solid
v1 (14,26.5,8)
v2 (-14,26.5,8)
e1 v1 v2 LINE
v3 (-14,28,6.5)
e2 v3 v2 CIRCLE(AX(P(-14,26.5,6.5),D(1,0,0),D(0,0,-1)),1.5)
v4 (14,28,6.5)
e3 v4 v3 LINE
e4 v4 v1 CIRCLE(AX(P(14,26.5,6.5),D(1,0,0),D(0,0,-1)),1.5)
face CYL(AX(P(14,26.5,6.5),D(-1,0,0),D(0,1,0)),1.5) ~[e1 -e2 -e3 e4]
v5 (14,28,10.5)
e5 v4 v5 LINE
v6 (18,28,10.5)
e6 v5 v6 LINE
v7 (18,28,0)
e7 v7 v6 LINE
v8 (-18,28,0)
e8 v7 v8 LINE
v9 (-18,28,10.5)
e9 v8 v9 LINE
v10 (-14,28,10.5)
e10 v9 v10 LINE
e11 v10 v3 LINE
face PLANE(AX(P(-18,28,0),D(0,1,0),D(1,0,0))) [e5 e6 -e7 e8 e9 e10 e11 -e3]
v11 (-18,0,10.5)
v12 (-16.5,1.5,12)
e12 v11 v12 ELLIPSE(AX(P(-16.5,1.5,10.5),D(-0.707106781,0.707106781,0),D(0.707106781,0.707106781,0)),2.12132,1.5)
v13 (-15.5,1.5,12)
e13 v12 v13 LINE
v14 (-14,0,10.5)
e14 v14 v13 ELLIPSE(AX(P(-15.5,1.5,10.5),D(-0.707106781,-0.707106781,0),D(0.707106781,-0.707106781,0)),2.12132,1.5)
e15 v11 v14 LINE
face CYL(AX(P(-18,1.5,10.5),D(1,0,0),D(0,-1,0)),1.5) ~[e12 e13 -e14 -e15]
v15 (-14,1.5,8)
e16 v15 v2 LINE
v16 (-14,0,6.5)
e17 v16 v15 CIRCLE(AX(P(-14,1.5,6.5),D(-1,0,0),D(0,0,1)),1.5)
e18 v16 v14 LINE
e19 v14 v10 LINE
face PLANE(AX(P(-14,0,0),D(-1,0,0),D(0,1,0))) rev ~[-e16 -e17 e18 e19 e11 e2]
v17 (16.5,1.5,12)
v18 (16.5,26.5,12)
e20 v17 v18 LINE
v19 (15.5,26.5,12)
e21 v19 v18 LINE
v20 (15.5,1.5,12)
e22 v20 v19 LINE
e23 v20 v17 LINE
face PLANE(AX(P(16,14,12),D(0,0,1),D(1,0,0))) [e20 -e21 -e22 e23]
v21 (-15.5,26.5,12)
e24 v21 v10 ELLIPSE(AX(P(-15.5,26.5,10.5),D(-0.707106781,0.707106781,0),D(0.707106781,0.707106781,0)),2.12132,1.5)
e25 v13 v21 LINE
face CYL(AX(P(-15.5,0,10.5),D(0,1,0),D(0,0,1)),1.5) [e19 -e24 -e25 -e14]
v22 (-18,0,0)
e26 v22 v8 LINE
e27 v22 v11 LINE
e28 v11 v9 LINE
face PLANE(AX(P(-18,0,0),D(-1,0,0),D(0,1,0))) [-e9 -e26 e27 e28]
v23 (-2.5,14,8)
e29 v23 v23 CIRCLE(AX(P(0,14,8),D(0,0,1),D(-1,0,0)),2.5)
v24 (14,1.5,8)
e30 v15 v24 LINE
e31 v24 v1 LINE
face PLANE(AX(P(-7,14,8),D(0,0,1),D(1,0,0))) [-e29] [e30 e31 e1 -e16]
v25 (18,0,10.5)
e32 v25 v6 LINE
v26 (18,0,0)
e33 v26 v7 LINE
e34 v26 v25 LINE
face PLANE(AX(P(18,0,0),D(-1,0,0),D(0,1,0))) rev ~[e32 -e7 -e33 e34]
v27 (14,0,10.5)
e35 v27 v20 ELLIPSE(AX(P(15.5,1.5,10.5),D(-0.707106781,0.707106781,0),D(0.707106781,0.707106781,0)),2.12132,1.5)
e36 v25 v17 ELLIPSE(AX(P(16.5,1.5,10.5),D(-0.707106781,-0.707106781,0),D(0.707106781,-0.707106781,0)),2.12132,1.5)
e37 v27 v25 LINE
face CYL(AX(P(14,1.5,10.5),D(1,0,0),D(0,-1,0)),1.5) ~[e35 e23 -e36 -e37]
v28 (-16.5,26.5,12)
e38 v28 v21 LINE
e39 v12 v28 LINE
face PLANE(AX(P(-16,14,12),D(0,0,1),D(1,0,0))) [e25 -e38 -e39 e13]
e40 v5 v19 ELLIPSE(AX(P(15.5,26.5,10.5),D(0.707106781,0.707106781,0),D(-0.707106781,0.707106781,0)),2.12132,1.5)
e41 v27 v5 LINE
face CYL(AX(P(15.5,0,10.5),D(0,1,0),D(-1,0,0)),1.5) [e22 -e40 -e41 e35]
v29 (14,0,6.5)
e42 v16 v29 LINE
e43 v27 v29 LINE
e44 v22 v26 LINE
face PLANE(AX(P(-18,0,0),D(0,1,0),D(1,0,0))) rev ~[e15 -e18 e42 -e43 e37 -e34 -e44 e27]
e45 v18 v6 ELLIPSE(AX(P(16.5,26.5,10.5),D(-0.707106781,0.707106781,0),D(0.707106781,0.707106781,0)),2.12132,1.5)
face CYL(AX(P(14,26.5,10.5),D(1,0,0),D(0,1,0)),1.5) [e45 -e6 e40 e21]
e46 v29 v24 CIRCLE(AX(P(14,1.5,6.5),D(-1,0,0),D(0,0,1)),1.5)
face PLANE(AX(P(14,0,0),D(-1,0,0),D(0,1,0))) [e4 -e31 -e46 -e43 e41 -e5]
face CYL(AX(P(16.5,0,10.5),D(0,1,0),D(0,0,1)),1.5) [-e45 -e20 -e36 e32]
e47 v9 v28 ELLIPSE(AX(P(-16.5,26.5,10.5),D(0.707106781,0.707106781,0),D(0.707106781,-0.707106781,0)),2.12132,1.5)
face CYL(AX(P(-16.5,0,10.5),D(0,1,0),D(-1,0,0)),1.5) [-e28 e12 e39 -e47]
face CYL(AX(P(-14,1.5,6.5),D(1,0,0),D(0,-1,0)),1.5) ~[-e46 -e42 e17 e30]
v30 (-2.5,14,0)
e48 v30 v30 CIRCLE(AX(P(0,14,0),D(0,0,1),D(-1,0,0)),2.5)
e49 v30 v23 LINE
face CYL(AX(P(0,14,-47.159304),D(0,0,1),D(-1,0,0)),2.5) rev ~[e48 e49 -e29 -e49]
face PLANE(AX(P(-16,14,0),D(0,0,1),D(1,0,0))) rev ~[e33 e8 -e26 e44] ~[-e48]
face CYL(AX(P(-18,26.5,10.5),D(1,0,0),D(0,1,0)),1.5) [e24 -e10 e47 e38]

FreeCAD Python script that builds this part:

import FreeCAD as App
import Part
import Sketcher
Q = App.Units.Quantity


def edges_at(feature, points):
    """Names of the edges that pass closest to the given points."""
    edges = feature.Shape.Edges
    near = lambda p: min(range(len(edges)), key=lambda i: edges[i].distToShape(Part.Vertex(*p))[0])
    return sorted({f"Edge{near(p) + 1}" for p in points})


def add_polygon(sketch, points):
    """Adds a closed chain of lines whose ends are joined by coincident constraints."""
    first, n = sketch.GeometryCount, len(points)
    for a, b in zip(points, points[1:] + points[:1]):
        sketch.addGeometry(Part.LineSegment(App.Vector(*a, 0), App.Vector(*b, 0)), False)
    for i in range(n):
        sketch.addConstraint(Sketcher.Constraint("Coincident", first + i, 2, first + (i + 1) % n, 1))

doc = App.newDocument("Part")
params = doc.addObject("Spreadsheet::Sheet", "Params")
for row, (alias, value) in enumerate([
    ("sketch1_width", "28 mm"),
    ("pad1_length", "8 mm"),
    ("sketch2_width", "4 mm"),
    ("sketch2_height", "28 mm"),
    ("pad2_length", "12 mm"),
    ("sketch3_diameter", "5 mm"),
    ("hole_diameter", "5 mm"),
    ("fillet_radius", "1.5 mm"),
], start=1):
    params.set(f"A{row}", alias)
    params.set(f"B{row}", "=" + value)
    params.setAlias(f"B{row}", alias)

body = doc.addObject("PartDesign::Body", "Body")

# Sketch on XY plane
sketch1 = body.newObject("Sketcher::SketchObject", "Sketch")
sketch1.AttachmentSupport = (doc.getObject("XY_Plane"), [""])
sketch1.MapMode = "FlatFace"
add_polygon(sketch1, [(-14, 28), (-14, 0), (14, 0), (14, 28)])  # lines 0-3
sketch1.addConstraint(Sketcher.Constraint("Vertical", 0))
sketch1.addConstraint(Sketcher.Constraint("Horizontal", 1))
sketch1.addConstraint(Sketcher.Constraint("Vertical", 2))
sketch1.addConstraint(Sketcher.Constraint("Horizontal", 3))
sketch1.addConstraint(Sketcher.Constraint("Symmetric", 0, 2, 1, 2, -1, 1))
sketch1.addConstraint(Sketcher.Constraint("Equal", 3, 0))
sketch1.addConstraint(Sketcher.Constraint("DistanceX", 1, 1, 1, 2, Q("28 mm")))
sketch1.setExpression("Constraints[10]", "Params.sketch1_width")
pad1 = body.newObject("PartDesign::Pad", "Pad")
pad1.Profile = sketch1
pad1.setExpression("Length", "Params.pad1_length")

# Sketch on XY plane
sketch2 = body.newObject("Sketcher::SketchObject", "Sketch001")
sketch2.AttachmentSupport = (doc.getObject("XY_Plane"), [""])
sketch2.MapMode = "FlatFace"
add_polygon(sketch2, [(-18, 28), (-18, 0), (-14, 0), (-14, 28)])  # lines 0-3
add_polygon(sketch2, [(14, 28), (14, 0), (18, 0), (18, 28)])  # lines 4-7
sketch2.addConstraint(Sketcher.Constraint("Vertical", 0))
sketch2.addConstraint(Sketcher.Constraint("Horizontal", 1))
sketch2.addConstraint(Sketcher.Constraint("Vertical", 2))
sketch2.addConstraint(Sketcher.Constraint("Horizontal", 3))
sketch2.addConstraint(Sketcher.Constraint("Vertical", 4))
sketch2.addConstraint(Sketcher.Constraint("Horizontal", 5))
sketch2.addConstraint(Sketcher.Constraint("Vertical", 6))
sketch2.addConstraint(Sketcher.Constraint("Horizontal", 7))
sketch2.addConstraint(Sketcher.Constraint("Symmetric", 1, 2, 4, 2, -1, 1))
sketch2.addConstraint(Sketcher.Constraint("Symmetric", 0, 2, 5, 2, -2))
sketch2.addConstraint(Sketcher.Constraint("Horizontal", 3, 2, 6, 2))
sketch2.addConstraint(Sketcher.Constraint("DistanceX", 1, 1, 1, 2, Q("4 mm")))
sketch2.addConstraint(Sketcher.Constraint("DistanceY", 0, 2, 0, 1, Q("28 mm")))
sketch2.addConstraint(Sketcher.Constraint("DistanceX", 0, 2, -1, 1, Q("18 mm")))
sketch2.setExpression("Constraints[19]", "Params.sketch2_width")
sketch2.setExpression("Constraints[20]", "Params.sketch2_height")
pad2 = body.newObject("PartDesign::Pad", "Pad001")
pad2.Profile = sketch2
pad2.setExpression("Length", "Params.pad2_length")

# Sketch on XY plane
sketch3 = body.newObject("Sketcher::SketchObject", "Sketch002")
sketch3.AttachmentSupport = (doc.getObject("XY_Plane"), [""])
sketch3.MapMode = "FlatFace"
sketch3.addGeometry(Part.Circle(App.Vector(0, 14, 0), App.Vector(0, 0, 1), 2.5), False)
sketch3.addConstraint(Sketcher.Constraint("PointOnObject", 0, 3, -2))
sketch3.addConstraint(Sketcher.Constraint("Diameter", 0, Q("5 mm")))
sketch3.addConstraint(Sketcher.Constraint("DistanceY", -1, 1, 0, 3, Q("14 mm")))
sketch3.setExpression("Constraints[1]", "Params.sketch3_diameter")
doc.recompute()
hole = body.newObject("PartDesign::Hole", "Hole")
hole.Profile = sketch3
hole.ThreadType = "None"
hole.setExpression("Diameter", "Params.hole_diameter")
hole.DepthType = "ThroughAll"
hole.Reversed = True
doc.recompute()

fillet = body.newObject("PartDesign::Fillet", "Fillet")
fillet.Base = (hole, edges_at(hole, [
    (-16, 0, 12),
    (-14, 14, 12),
    (-16, 28, 12),
    (-18, 14, 12),
    (14, 14, 12),
    (16, 0, 12),
    (18, 14, 12),
    (16, 28, 12),
    (0, 28, 8),
    (0, 0, 8),
]))
fillet.setExpression("Radius", "Params.fillet_radius")

doc.recompute()
